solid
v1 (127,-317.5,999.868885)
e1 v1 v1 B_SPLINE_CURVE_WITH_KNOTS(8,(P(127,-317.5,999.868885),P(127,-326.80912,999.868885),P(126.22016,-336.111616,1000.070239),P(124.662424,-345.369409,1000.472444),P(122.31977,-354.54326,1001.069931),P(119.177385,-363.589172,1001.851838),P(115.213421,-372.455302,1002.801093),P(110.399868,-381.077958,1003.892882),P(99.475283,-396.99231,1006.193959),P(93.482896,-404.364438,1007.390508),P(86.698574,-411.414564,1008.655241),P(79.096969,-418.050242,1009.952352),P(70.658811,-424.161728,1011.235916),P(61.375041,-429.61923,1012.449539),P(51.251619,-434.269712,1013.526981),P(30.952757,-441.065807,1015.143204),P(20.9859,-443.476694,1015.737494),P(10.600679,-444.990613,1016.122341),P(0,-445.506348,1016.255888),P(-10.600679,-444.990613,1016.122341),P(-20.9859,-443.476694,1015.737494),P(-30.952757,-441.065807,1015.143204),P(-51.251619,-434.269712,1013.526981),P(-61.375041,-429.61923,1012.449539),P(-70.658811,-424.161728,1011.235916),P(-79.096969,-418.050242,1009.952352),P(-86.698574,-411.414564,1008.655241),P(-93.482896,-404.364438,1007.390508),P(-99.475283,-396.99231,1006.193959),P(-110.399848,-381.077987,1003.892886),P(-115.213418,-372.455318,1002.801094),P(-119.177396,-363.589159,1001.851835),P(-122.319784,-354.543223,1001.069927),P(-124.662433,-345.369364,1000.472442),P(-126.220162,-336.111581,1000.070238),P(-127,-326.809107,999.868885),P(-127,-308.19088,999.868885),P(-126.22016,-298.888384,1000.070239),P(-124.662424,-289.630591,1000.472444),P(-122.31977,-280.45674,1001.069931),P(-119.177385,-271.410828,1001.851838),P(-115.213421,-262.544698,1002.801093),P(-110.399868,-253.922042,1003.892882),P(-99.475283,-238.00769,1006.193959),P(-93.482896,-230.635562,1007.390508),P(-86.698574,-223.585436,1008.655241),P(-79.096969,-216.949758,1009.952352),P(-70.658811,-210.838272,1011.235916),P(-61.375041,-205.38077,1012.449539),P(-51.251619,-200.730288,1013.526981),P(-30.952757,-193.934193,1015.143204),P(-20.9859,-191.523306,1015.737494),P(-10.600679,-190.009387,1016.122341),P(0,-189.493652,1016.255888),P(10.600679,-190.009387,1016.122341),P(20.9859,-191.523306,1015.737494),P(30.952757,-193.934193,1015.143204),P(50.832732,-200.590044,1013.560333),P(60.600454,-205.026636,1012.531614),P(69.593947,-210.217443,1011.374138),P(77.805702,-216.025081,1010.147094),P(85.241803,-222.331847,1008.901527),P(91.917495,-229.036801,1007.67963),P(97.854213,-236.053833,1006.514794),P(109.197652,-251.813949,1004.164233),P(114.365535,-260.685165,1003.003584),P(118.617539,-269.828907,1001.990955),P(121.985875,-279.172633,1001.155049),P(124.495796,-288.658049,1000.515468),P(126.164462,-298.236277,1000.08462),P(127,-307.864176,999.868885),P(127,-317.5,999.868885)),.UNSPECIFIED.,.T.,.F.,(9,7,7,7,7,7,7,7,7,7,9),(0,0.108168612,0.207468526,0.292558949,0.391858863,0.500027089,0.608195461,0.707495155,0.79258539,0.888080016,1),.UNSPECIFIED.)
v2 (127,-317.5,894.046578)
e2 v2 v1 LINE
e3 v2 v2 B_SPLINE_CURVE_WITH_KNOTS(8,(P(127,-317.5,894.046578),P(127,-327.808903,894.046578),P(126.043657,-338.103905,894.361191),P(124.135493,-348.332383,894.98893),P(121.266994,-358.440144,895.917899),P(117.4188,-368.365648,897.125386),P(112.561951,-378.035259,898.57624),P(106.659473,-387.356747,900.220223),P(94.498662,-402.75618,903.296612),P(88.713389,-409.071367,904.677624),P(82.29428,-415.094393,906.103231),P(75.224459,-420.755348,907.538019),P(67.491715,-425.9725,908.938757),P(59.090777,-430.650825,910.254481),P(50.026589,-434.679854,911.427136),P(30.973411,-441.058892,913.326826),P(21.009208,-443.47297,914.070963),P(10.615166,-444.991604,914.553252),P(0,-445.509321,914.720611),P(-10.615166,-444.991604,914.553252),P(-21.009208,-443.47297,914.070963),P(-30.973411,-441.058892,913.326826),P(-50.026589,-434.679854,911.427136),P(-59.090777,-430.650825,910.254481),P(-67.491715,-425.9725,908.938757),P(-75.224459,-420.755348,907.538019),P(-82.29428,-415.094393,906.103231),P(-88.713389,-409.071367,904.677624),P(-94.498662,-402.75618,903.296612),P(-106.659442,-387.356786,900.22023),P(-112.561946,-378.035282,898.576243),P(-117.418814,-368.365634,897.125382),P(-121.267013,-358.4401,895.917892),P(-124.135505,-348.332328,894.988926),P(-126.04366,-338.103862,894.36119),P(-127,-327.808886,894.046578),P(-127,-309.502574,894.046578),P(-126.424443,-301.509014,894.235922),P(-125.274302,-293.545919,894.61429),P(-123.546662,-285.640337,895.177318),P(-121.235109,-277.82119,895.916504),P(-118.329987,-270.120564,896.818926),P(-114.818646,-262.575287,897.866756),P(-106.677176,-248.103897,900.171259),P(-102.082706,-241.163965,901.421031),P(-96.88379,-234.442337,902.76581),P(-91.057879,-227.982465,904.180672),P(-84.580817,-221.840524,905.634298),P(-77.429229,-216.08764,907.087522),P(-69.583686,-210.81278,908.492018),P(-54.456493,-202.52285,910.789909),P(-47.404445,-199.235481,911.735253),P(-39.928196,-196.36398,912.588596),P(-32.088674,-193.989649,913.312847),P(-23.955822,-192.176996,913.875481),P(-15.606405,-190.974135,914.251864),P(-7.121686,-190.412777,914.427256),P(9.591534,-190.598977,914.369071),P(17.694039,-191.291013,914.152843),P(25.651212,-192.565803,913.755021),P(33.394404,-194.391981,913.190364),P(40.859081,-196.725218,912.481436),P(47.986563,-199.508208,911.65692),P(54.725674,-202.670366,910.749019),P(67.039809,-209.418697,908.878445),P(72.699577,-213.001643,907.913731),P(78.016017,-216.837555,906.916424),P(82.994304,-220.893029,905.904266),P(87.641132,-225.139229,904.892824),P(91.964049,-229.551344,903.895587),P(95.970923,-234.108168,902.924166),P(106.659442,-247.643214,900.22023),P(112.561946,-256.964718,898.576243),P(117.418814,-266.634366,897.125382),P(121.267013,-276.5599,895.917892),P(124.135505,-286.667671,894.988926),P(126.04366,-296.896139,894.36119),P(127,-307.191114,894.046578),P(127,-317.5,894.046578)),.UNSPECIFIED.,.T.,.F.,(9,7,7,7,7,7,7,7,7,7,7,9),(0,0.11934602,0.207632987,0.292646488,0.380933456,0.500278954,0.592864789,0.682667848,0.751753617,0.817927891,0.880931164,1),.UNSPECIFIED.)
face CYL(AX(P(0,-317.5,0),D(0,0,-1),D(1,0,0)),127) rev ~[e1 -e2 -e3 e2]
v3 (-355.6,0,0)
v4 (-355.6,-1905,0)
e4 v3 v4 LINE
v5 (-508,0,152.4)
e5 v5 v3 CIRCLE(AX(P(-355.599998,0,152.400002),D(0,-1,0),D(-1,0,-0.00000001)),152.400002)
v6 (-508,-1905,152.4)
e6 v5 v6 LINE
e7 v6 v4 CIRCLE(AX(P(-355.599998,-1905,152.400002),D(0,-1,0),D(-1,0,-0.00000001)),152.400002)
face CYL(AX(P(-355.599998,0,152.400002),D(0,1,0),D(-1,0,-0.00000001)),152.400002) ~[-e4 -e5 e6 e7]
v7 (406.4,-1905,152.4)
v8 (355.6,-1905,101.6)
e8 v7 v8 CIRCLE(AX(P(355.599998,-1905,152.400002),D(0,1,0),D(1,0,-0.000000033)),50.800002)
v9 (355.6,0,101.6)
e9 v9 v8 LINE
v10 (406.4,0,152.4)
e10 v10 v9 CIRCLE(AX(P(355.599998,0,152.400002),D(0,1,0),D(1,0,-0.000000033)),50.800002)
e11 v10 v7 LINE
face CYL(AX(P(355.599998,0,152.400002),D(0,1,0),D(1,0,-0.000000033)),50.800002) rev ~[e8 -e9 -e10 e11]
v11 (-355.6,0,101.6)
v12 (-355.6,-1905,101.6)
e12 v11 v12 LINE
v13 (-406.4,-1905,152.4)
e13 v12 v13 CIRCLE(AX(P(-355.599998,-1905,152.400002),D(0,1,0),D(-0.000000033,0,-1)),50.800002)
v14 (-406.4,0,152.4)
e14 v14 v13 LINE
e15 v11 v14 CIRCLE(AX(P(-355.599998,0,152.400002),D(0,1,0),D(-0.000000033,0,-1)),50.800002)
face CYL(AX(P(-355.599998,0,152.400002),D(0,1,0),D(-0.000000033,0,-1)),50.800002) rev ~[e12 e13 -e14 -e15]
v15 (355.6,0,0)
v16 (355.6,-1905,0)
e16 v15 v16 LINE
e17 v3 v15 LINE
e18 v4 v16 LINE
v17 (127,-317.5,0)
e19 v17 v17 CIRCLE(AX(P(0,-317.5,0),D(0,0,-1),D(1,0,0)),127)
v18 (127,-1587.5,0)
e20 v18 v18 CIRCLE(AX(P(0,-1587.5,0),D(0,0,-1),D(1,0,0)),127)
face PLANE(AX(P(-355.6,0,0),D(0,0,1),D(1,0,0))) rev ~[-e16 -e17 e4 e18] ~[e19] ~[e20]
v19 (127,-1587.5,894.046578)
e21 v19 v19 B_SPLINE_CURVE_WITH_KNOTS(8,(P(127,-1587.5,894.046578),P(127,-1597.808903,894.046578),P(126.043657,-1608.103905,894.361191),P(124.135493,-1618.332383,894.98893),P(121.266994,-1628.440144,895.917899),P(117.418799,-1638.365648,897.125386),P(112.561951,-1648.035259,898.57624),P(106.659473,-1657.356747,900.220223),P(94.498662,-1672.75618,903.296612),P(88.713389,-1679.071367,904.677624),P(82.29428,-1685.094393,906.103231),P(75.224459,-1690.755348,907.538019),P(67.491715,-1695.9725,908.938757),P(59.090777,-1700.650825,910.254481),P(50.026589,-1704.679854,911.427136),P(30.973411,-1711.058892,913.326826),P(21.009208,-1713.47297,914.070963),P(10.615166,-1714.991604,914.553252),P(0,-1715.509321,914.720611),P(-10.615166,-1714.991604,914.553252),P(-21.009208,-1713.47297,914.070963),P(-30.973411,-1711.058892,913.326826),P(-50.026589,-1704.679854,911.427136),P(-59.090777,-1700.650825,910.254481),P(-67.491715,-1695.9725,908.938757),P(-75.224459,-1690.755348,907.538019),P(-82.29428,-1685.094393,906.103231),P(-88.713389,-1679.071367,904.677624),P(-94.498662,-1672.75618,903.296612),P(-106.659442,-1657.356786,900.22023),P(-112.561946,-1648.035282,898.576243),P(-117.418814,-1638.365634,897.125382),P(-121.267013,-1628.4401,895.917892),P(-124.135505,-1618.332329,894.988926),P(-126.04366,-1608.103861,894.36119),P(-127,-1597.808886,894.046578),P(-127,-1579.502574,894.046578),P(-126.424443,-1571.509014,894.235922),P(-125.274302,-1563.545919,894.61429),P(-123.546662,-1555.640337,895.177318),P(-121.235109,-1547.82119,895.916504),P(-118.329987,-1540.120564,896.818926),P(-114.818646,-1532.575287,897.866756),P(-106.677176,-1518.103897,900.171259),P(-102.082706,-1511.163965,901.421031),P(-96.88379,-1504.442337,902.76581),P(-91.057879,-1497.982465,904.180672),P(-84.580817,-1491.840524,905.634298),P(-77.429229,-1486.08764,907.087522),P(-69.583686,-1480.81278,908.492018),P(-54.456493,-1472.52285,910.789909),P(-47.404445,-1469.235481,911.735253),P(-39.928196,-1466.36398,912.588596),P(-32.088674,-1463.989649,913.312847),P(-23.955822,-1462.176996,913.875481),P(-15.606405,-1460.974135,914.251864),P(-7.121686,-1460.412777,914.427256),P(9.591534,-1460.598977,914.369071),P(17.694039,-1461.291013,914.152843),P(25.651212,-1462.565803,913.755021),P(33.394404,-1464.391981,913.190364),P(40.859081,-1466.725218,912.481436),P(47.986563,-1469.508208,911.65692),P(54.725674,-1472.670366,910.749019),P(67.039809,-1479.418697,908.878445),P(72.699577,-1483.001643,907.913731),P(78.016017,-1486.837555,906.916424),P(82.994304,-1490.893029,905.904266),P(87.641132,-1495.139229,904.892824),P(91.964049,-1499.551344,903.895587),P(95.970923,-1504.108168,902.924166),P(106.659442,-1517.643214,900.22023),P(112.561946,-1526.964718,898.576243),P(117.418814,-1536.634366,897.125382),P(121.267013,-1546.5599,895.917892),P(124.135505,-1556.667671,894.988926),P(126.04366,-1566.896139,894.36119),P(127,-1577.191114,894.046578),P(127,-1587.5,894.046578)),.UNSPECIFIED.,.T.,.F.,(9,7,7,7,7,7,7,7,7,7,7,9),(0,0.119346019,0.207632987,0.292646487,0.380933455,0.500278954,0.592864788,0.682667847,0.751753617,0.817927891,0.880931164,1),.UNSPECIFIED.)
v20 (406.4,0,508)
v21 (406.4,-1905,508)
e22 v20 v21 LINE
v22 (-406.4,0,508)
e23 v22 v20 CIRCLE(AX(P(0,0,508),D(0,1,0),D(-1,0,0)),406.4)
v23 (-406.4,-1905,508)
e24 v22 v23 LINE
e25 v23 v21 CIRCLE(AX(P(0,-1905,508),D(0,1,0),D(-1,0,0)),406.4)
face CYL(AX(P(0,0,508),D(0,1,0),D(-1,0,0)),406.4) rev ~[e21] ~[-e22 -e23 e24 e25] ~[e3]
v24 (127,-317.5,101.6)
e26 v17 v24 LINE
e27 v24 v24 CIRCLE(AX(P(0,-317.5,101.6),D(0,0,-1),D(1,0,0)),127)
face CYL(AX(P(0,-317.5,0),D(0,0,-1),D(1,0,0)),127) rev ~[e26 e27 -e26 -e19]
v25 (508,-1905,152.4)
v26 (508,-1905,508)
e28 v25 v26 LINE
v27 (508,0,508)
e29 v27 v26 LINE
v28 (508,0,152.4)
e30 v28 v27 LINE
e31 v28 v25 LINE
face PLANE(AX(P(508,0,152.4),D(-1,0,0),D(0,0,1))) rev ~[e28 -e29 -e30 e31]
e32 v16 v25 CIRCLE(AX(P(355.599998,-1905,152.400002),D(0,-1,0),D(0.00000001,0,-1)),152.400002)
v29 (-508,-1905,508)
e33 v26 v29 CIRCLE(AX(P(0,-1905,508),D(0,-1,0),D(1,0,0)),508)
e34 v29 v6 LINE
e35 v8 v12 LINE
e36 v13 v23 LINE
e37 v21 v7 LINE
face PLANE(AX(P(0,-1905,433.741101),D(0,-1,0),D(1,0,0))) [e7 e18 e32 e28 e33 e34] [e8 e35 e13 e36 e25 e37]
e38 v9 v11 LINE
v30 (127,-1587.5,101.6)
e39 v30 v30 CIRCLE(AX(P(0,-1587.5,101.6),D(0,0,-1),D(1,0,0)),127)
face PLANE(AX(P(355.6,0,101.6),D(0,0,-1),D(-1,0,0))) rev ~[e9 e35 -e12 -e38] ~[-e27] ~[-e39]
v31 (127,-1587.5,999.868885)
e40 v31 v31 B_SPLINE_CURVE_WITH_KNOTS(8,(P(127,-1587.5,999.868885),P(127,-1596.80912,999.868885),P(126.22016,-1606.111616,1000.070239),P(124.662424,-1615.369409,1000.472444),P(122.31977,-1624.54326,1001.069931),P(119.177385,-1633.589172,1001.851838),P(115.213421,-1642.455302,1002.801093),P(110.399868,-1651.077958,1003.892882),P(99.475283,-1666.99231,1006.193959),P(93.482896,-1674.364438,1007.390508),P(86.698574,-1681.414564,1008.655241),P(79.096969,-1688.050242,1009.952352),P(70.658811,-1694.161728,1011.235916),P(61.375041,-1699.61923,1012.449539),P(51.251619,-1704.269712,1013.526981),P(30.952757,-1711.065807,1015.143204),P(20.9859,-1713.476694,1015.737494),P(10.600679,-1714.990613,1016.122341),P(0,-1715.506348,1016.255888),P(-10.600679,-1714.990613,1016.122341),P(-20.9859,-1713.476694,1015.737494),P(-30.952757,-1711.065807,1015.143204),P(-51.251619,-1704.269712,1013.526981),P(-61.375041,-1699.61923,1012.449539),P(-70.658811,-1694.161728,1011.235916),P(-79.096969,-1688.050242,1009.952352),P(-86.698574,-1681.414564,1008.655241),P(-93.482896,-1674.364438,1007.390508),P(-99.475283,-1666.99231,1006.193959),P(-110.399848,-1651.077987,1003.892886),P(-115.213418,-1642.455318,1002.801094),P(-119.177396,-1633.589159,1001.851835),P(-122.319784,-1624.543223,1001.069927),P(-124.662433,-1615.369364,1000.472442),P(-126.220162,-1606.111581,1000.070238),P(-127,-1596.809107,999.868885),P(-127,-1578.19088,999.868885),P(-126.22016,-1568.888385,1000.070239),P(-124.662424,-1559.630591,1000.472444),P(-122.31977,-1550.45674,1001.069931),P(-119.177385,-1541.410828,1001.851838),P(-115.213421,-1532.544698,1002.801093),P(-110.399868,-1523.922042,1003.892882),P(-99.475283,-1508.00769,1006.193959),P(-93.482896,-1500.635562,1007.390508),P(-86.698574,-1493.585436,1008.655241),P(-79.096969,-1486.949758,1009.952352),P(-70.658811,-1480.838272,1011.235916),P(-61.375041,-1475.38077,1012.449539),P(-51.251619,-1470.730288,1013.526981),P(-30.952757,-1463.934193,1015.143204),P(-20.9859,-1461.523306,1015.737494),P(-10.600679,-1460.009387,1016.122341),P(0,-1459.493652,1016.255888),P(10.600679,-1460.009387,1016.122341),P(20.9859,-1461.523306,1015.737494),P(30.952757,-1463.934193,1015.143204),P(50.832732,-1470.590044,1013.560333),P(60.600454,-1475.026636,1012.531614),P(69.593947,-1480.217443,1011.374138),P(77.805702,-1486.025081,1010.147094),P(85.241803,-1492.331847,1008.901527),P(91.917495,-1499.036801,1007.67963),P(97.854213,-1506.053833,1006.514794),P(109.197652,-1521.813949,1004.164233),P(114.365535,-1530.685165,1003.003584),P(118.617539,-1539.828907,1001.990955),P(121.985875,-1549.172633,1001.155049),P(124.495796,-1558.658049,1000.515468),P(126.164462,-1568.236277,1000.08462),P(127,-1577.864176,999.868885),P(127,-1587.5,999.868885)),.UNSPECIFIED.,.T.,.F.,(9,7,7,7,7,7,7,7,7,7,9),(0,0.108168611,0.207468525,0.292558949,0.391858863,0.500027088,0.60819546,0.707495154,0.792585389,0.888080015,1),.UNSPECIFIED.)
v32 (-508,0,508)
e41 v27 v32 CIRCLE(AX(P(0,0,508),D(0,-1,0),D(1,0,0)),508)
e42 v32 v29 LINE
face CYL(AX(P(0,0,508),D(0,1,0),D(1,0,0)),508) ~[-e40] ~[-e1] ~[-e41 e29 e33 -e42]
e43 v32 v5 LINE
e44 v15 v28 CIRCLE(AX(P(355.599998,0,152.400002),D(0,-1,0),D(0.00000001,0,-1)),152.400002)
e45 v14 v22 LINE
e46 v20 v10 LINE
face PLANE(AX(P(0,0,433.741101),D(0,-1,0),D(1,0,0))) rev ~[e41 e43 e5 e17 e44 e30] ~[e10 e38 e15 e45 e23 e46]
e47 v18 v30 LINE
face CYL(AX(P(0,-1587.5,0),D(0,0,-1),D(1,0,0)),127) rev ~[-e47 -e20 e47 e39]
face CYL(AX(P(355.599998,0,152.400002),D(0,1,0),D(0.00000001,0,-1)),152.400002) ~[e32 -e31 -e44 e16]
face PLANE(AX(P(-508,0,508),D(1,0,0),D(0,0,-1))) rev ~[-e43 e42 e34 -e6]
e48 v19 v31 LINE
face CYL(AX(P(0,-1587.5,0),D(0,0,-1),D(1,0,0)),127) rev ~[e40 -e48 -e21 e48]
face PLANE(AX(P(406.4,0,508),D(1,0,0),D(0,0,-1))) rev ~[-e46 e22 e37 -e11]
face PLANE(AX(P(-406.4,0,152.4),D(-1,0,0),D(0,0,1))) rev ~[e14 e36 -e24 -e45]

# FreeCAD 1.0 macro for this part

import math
import FreeCAD as App
import Part
import Sketcher

V = App.Vector
Q = App.Units.Quantity

doc = App.newDocument("Part")
body = doc.addObject("PartDesign::Body", "Body")

# Sketch on XZ plane
sketch1 = body.newObject("Sketcher::SketchObject", "Sketch")
sketch1.AttachmentSupport = (doc.getObject("XZ_Plane"), [""])
sketch1.MapMode = "FlatFace"
sketch1.addGeometry([
    Part.LineSegment(V(508, 152, 0), V(508, 508, 0)),  # 0
    Part.ArcOfCircle(Part.Circle(V(0, 508, 0), V(0, 0, 1), 508), math.radians(0), math.radians(180)),  # 1
    Part.LineSegment(V(-508, 508, 0), V(-508, 152, 0)),  # 2
    Part.ArcOfCircle(Part.Circle(V(-356, 152, 0), V(0, 0, 1), 152), math.radians(-180), math.radians(-90)),  # 3
    Part.LineSegment(V(-356, 0, 0), V(356, 0, 0)),  # 4
    Part.ArcOfCircle(Part.Circle(V(356, 152, 0), V(0, 0, 1), 152), math.radians(-90), math.radians(0)),  # 5
    Part.LineSegment(V(-406, 152, 0), V(-406, 508, 0)),  # 6
    Part.ArcOfCircle(Part.Circle(V(0, 508, 0), V(0, 0, 1), 406), math.radians(0), math.radians(180)),  # 7
    Part.LineSegment(V(406, 508, 0), V(406, 152, 0)),  # 8
    Part.ArcOfCircle(Part.Circle(V(356, 152, 0), V(0, 0, 1), 51), math.radians(-90), math.radians(0)),  # 9
    Part.LineSegment(V(356, 102, 0), V(-356, 102, 0)),  # 10
    Part.ArcOfCircle(Part.Circle(V(-356, 152, 0), V(0, 0, 1), 51), math.radians(-180), math.radians(-90)),  # 11
], False)
sketch1.addConstraint([
    Sketcher.Constraint("Tangent", 0, 2, 1, 1),
    Sketcher.Constraint("Tangent", 1, 2, 2, 1),
    Sketcher.Constraint("Tangent", 2, 2, 3, 1),
    Sketcher.Constraint("Tangent", 3, 2, 4, 1),
    Sketcher.Constraint("Tangent", 4, 2, 5, 1),
    Sketcher.Constraint("Tangent", 5, 2, 0, 1),
    Sketcher.Constraint("Tangent", 6, 2, 7, 2),
    Sketcher.Constraint("Tangent", 7, 1, 8, 1),
    Sketcher.Constraint("Tangent", 8, 2, 9, 2),
    Sketcher.Constraint("Tangent", 9, 1, 10, 1),
    Sketcher.Constraint("Tangent", 10, 2, 11, 2),
    Sketcher.Constraint("Tangent", 11, 1, 6, 1),
    Sketcher.Constraint("Vertical", 0),
    Sketcher.Constraint("Vertical", 2),
    Sketcher.Constraint("Horizontal", 4),
    Sketcher.Constraint("Vertical", 6),
    Sketcher.Constraint("Vertical", 8),
    Sketcher.Constraint("Horizontal", 10),
    Sketcher.Constraint("Coincident", 7, 3, 1, 3),
    Sketcher.Constraint("Coincident", 9, 3, 5, 3),
    Sketcher.Constraint("Equal", 3, 5),
    Sketcher.Constraint("Equal", 9, 11),
    Sketcher.Constraint("Symmetric", 3, 2, 4, 2, -1, 1),
    Sketcher.Constraint("Radius", 1, Q("20 in")),
    Sketcher.Constraint("Radius", 3, Q("6.0000001 in")),
    Sketcher.Constraint("Radius", 7, Q("16 in")),
    Sketcher.Constraint("DistanceY", 0, 1, 0, 2, Q("14 in")),
])
pad1 = body.newObject("PartDesign::Pad", "Pad")
pad1.Profile = sketch1
pad1.Length = Q("75 in")

# Sketch on XY plane
sketch2 = body.newObject("Sketcher::SketchObject", "Sketch001")
sketch2.AttachmentSupport = (doc.getObject("XY_Plane"), [""])
sketch2.MapMode = "FlatFace"
sketch2.addGeometry([
    Part.Circle(V(0, -1588, 0), V(0, 0, 1), 127),
    Part.Circle(V(0, -318, 0), V(0, 0, 1), 127),
], False)
sketch2.addConstraint([
    Sketcher.Constraint("Equal", 0, 1),
    Sketcher.Constraint("PointOnObject", 0, 3, -2),
    Sketcher.Constraint("PointOnObject", 1, 3, -2),
    Sketcher.Constraint("Diameter", 0, Q("10 in")),
    Sketcher.Constraint("DistanceY", 0, 3, 1, 3, Q("50 in")),
    Sketcher.Constraint("DistanceY", 0, 3, -1, 1, Q("62.5 in")),
])
pocket1 = body.newObject("PartDesign::Pocket", "Pocket")
pocket1.Profile = sketch2
pocket1.Type = "ThroughAll"
pocket1.Reversed = True

doc.recompute()
